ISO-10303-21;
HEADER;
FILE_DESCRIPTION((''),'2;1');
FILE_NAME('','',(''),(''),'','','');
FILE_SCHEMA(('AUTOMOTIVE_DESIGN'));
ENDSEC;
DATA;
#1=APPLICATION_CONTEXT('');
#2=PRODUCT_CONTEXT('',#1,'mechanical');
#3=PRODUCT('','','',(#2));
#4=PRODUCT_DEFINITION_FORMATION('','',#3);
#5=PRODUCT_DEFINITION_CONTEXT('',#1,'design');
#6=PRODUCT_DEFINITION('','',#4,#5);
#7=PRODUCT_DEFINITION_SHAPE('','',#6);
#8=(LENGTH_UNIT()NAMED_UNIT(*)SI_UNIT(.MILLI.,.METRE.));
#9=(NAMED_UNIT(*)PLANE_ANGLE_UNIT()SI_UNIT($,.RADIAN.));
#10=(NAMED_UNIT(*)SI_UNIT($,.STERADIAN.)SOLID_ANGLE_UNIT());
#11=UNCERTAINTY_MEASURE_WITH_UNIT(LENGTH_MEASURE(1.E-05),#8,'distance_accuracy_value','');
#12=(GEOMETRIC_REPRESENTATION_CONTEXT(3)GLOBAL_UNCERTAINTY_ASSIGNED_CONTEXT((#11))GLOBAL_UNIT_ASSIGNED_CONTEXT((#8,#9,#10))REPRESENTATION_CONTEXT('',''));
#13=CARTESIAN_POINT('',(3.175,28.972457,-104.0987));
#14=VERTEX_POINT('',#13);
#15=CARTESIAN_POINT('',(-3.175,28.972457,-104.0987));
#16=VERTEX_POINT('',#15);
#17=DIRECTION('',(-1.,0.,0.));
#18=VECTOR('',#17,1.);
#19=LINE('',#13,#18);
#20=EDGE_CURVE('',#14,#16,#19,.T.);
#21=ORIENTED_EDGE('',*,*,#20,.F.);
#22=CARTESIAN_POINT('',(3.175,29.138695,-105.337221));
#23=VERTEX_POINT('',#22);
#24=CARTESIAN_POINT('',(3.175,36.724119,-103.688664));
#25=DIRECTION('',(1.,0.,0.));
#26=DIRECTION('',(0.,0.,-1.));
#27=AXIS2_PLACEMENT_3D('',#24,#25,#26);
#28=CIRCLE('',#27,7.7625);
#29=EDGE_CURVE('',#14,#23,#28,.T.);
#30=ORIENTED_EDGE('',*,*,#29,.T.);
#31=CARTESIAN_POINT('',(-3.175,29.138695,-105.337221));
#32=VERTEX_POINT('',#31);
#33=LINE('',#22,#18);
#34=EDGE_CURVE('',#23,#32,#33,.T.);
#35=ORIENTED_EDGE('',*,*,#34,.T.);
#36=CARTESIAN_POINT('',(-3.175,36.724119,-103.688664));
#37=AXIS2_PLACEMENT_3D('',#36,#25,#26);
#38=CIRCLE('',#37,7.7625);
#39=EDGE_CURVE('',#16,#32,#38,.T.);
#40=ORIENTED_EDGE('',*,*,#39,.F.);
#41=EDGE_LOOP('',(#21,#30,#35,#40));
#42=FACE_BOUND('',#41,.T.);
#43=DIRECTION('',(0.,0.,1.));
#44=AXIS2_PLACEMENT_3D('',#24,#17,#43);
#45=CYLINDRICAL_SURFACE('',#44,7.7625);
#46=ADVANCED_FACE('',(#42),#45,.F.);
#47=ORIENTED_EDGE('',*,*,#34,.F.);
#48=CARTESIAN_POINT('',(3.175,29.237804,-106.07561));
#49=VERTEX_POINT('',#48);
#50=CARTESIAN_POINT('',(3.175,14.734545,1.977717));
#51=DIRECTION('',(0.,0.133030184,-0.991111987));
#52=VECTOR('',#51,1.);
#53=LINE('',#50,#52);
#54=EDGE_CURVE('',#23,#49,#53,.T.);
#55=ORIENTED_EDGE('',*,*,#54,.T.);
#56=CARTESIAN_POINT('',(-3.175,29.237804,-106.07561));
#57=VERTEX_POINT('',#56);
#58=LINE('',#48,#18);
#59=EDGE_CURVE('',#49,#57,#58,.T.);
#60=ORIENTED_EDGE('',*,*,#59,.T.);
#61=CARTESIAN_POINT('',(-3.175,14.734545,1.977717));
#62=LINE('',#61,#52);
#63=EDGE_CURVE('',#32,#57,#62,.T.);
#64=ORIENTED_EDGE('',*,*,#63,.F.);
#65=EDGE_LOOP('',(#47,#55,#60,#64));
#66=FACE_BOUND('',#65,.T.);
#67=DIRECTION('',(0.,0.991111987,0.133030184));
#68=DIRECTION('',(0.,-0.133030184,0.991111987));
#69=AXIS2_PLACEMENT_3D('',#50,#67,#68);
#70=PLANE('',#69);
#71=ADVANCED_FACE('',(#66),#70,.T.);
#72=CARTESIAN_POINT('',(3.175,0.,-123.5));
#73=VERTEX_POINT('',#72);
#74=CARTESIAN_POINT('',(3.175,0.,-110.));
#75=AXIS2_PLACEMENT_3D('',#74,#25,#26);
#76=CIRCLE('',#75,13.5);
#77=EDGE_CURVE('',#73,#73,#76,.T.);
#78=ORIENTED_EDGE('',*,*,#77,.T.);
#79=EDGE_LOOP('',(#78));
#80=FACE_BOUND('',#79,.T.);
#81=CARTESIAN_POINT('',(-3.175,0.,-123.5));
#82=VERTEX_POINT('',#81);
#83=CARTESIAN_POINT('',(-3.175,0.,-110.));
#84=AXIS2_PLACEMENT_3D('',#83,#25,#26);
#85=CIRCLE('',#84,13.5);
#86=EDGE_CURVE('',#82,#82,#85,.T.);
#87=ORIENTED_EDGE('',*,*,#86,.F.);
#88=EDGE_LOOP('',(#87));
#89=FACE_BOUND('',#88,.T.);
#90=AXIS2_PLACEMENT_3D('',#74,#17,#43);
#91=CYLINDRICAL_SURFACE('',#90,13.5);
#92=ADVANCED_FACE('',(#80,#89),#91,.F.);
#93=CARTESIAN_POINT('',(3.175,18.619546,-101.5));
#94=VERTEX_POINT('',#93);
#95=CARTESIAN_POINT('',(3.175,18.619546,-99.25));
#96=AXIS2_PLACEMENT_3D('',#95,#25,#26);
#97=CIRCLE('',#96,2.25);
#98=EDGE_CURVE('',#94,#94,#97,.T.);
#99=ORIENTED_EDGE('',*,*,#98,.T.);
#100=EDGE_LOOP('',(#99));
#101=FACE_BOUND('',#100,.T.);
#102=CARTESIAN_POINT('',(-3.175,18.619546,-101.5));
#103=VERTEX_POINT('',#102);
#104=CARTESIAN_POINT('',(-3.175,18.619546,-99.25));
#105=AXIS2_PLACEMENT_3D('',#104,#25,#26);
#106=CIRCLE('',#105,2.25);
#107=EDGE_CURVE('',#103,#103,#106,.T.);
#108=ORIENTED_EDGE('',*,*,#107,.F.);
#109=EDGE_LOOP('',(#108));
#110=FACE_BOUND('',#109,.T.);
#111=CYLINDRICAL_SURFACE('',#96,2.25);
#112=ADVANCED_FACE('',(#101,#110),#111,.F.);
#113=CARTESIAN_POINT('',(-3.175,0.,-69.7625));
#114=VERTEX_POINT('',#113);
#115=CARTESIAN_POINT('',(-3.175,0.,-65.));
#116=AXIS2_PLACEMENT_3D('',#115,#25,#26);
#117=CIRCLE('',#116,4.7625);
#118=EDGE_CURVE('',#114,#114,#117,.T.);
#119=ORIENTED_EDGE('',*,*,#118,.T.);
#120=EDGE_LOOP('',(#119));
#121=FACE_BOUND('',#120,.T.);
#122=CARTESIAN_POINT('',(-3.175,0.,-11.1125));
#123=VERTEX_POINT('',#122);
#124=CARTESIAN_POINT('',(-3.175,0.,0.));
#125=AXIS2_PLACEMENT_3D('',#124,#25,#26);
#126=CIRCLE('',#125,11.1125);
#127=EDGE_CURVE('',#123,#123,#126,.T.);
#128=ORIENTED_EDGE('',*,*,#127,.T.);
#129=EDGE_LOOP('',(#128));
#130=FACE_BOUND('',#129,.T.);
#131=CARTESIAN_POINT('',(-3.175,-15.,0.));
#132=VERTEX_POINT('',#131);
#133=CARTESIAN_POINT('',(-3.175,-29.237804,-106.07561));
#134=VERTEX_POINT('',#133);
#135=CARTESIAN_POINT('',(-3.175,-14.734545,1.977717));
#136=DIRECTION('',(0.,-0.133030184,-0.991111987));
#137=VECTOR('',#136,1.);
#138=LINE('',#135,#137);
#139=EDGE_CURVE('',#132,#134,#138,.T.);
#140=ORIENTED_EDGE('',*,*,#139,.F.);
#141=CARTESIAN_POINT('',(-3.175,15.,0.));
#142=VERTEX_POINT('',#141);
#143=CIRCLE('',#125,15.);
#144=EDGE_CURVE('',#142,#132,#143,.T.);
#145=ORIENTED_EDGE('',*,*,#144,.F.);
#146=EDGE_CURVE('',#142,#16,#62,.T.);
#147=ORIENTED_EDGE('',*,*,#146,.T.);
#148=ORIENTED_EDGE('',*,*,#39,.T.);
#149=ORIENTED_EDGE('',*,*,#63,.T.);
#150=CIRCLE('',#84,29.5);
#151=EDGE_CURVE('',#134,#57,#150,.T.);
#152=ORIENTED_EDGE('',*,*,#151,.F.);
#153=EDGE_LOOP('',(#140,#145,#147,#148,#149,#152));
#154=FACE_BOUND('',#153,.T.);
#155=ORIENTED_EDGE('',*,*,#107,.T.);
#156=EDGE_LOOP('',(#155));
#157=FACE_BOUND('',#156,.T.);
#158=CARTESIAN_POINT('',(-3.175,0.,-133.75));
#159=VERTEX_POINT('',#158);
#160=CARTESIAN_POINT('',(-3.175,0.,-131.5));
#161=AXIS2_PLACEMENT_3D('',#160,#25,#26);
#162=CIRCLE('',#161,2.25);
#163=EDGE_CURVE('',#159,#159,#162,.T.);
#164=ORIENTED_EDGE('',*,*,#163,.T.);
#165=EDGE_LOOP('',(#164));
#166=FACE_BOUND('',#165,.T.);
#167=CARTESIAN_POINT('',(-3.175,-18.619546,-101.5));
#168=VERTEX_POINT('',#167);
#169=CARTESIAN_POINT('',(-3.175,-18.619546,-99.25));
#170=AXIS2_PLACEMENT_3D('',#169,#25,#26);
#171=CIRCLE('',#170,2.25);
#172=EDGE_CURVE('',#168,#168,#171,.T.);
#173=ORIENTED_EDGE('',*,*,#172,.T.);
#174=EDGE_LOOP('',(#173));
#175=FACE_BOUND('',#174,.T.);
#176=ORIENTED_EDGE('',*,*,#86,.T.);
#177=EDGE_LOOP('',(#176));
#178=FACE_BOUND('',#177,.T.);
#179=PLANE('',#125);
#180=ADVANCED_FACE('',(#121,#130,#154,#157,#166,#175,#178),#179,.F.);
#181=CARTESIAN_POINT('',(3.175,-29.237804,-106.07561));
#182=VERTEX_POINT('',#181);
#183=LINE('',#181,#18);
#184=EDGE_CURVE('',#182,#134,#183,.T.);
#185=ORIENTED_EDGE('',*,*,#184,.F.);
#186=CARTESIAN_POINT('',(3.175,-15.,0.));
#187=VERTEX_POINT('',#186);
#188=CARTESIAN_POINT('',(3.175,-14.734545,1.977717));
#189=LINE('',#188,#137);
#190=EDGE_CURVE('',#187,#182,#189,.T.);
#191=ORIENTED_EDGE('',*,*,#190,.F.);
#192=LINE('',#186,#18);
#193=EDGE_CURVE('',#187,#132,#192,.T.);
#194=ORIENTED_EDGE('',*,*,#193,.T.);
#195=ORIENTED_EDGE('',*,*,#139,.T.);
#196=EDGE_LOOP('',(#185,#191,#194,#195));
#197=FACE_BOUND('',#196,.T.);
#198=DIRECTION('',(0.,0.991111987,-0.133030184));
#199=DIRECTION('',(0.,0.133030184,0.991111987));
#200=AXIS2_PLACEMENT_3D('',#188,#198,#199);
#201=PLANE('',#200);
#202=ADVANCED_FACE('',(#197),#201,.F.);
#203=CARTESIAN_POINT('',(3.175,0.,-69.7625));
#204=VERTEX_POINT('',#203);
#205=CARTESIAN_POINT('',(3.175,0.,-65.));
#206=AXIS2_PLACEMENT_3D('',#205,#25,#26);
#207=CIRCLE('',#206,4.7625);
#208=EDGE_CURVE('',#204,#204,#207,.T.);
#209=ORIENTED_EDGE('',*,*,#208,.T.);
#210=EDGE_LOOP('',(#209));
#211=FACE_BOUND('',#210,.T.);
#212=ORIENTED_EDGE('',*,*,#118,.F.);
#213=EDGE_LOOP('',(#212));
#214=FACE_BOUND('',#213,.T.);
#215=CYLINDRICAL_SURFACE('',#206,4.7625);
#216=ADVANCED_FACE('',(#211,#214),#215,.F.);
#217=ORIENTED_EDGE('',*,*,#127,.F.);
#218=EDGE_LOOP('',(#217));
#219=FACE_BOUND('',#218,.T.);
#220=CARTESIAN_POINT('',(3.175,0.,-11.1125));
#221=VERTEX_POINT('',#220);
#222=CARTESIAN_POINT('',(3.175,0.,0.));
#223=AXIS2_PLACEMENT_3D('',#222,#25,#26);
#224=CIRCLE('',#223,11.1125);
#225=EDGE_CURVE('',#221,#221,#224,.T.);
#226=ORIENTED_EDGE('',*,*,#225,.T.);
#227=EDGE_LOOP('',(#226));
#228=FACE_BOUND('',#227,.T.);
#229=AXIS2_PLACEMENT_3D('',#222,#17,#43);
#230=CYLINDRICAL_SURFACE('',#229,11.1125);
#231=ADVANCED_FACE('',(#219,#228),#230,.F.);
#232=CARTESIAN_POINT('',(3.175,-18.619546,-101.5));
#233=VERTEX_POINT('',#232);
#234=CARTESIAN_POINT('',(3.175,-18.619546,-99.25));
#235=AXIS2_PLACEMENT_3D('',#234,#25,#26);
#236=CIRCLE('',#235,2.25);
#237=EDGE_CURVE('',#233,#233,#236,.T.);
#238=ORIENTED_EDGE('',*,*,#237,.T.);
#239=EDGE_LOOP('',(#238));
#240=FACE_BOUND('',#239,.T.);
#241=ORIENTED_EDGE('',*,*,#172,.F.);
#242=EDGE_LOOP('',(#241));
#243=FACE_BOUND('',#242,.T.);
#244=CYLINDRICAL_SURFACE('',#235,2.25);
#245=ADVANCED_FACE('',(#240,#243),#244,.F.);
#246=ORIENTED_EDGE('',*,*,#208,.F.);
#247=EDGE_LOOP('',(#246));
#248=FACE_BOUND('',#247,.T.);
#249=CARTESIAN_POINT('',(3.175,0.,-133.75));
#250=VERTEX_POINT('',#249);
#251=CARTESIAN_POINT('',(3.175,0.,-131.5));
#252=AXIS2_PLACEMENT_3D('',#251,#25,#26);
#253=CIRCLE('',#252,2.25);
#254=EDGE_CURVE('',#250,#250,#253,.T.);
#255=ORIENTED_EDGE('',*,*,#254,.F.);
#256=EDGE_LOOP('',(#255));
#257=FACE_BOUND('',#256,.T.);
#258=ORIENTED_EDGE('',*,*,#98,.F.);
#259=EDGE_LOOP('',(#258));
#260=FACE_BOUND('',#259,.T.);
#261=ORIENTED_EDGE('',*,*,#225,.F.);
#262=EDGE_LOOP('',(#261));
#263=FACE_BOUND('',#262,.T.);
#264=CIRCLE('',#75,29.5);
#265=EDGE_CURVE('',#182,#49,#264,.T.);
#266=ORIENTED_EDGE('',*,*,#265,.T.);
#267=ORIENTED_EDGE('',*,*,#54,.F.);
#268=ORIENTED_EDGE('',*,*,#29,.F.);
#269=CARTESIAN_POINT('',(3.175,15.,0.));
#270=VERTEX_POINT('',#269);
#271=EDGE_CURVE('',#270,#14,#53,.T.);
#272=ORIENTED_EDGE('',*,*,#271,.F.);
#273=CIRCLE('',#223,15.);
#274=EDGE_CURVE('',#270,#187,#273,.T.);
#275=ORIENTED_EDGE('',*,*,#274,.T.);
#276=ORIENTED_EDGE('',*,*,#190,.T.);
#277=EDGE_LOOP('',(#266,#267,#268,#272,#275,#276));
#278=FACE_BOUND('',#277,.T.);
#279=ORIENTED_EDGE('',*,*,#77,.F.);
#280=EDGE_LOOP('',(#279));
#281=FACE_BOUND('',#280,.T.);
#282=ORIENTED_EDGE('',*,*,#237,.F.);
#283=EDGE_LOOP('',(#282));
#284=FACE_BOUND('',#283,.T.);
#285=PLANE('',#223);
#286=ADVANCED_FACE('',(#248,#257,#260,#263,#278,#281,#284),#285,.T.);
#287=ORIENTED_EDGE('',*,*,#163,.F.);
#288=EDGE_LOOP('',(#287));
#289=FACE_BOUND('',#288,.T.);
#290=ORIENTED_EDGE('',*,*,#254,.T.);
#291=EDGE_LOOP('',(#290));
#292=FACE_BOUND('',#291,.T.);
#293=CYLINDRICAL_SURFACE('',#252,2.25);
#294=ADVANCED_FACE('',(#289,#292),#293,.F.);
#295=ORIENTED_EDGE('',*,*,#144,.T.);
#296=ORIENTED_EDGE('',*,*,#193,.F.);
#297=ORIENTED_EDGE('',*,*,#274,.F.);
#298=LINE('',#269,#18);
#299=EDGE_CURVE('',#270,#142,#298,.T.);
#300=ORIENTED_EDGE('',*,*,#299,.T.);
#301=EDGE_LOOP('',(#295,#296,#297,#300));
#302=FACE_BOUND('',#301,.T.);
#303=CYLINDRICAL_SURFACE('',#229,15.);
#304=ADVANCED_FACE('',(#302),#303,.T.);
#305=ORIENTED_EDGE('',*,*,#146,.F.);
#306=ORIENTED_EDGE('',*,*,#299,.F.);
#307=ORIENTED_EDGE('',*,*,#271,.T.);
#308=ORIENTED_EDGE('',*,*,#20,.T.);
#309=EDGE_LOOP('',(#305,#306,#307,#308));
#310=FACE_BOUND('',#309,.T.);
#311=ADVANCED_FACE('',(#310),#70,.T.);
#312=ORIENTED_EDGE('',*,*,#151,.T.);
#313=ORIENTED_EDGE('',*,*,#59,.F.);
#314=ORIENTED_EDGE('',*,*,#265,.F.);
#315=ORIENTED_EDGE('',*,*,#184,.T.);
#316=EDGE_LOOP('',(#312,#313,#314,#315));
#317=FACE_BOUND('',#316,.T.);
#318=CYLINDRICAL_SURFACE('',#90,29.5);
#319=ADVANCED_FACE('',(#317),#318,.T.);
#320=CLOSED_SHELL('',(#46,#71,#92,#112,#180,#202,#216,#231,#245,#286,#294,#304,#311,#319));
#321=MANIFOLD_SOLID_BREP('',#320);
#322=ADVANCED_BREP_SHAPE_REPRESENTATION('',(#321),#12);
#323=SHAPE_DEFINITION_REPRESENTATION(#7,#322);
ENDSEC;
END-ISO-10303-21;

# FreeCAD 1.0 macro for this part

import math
import FreeCAD as App
import Part
import Sketcher

V = App.Vector
Q = App.Units.Quantity

doc = App.newDocument("Part")
body = doc.addObject("PartDesign::Body", "Body")

# Sketch on YZ plane
sketch1 = body.newObject("Sketcher::SketchObject", "Sketch")
sketch1.AttachmentSupport = (doc.getObject("YZ_Plane"), [""])
sketch1.MapMode = "FlatFace"
sketch1.addGeometry([
    Part.LineSegment(V(29, -104.1, 0), V(15, 0, 0)),  # 0
    Part.ArcOfCircle(Part.Circle(V(0, 0, 0), V(0, 0, 1), 15), math.radians(0), math.radians(15.73)),  # 1
    Part.ArcOfCircle(Part.Circle(V(0, 0, 0), V(0, 0, 1), 15), math.radians(16), math.radians(180)),  # 2
    Part.LineSegment(V(-15, 0, 0), V(-29.2, -106.1, 0)),  # 3
    Part.ArcOfCircle(Part.Circle(V(0, -110, 0), V(0, 0, 1), 29.5), math.radians(172), math.radians(315)),  # 4
    Part.ArcOfCircle(Part.Circle(V(0, -110, 0), V(0, 0, 1), 29.5), math.radians(-45), math.radians(8)),  # 5
    Part.LineSegment(V(29.2, -106.1, 0), V(29.1, -105.3, 0)),  # 6
    Part.ArcOfCircle(Part.Circle(V(36.7, -103.7, 0), V(0, 0, 1), 7.8), math.radians(-176.97), math.radians(-167.74)),  # 7
    Part.Circle(V(0, 0, 0), V(0, 0, 1), 11.1),  # 8
    Part.Circle(V(0, -110, 0), V(0, 0, 1), 13.5),  # 9
], False)
sketch1.addConstraint([
    Sketcher.Constraint("Coincident", 0, 2, 1, 1),
    Sketcher.Constraint("Tangent", 1, 2, 2, 1),
    Sketcher.Constraint("Coincident", 2, 2, 3, 1),
    Sketcher.Constraint("Tangent", 3, 2, 4, 1),
    Sketcher.Constraint("Tangent", 4, 2, 5, 1),
    Sketcher.Constraint("Tangent", 5, 2, 6, 1),
    Sketcher.Constraint("Coincident", 6, 2, 7, 2),
    Sketcher.Constraint("Coincident", 7, 1, 0, 1),
    Sketcher.Constraint("Coincident", 1, 3, -1, 1),
    Sketcher.Constraint("Coincident", 8, 3, -1, 1),
    Sketcher.Constraint("Coincident", 9, 3, 4, 3),
    Sketcher.Constraint("Equal", 1, 2),
    Sketcher.Constraint("Equal", 4, 5),
    Sketcher.Constraint("Symmetric", 3, 2, 5, 2, -2),
    Sketcher.Constraint("PointOnObject", 0, 2, -1),
    Sketcher.Constraint("PointOnObject", 2, 2, -1),
    Sketcher.Constraint("Diameter", 9, Q("27 mm")),
    Sketcher.Constraint("Radius", 1, Q("15 mm")),
    Sketcher.Constraint("Radius", 4, Q("29.5 mm")),
    Sketcher.Constraint("Diameter", 8, Q("22.225 mm")),
    Sketcher.Constraint("DistanceY", 4, 3, -1, 1, Q("110 mm")),
    Sketcher.Constraint("Radius", 7, Q("7.7625 mm")),
    Sketcher.Constraint("DistanceY", 7, 1, -1, 1, Q("104.0987 mm")),
    Sketcher.Constraint("DistanceX", 1, 2, 7, 3, Q("22.285901 mm")),
    Sketcher.Constraint("Distance", 6, Q("0.745011 mm")),
    Sketcher.Constraint("DistanceX", -1, 1, 7, 3, Q("36.724119 mm")),
    Sketcher.Constraint("DistanceY", 4, 2, -1, 1, Q("130.69929 mm")),
])
pad1 = body.newObject("PartDesign::Pad", "Pad")
pad1.Profile = sketch1
pad1.Length = 6.35
pad1.Midplane = True

# Sketch on YZ plane
sketch2 = body.newObject("Sketcher::SketchObject", "Sketch001")
sketch2.AttachmentSupport = (doc.getObject("YZ_Plane"), [""])
sketch2.MapMode = "FlatFace"
sketch2.AttachmentOffset = App.Placement(V(0, 0, 3.175), App.Rotation())
sketch2.addGeometry([
    Part.Circle(V(18.6, -99.2, 0), V(0, 0, 1), 2.2),
    Part.Circle(V(0, -131.5, 0), V(0, 0, 1), 2.2),
    Part.Circle(V(-18.6, -99.2, 0), V(0, 0, 1), 2.2),
], False)
sketch2.addConstraint([
    Sketcher.Constraint("Equal", 0, 1),
    Sketcher.Constraint("Equal", 1, 2),
    Sketcher.Constraint("Symmetric", 0, 3, 2, 3, -2),
    Sketcher.Constraint("PointOnObject", 1, 3, -2),
    Sketcher.Constraint("Diameter", 0, Q("4.5 mm")),
    Sketcher.Constraint("DistanceY", 1, 3, -1, 1, Q("131.5 mm")),
    Sketcher.Constraint("DistanceY", 0, 3, -1, 1, Q("99.25 mm")),
    Sketcher.Constraint("DistanceX", -1, 1, 0, 3, Q("18.619546 mm")),
])
doc.recompute()
hole = body.newObject("PartDesign::Hole", "Hole")
hole.Profile = sketch2
hole.ThreadType = "None"
hole.Diameter = 4.5
hole.DepthType = "ThroughAll"

# Sketch on YZ plane
sketch3 = body.newObject("Sketcher::SketchObject", "Sketch002")
sketch3.AttachmentSupport = (doc.getObject("YZ_Plane"), [""])
sketch3.MapMode = "FlatFace"
sketch3.AttachmentOffset = App.Placement(V(0, 0, 3.175), App.Rotation())
sketch3.addGeometry(Part.Circle(V(0, -65, 0), V(0, 0, 1), 4.8), False)
sketch3.addConstraint([
    Sketcher.Constraint("PointOnObject", 0, 3, -2),
    Sketcher.Constraint("Diameter", 0, Q("9.525 mm")),
    Sketcher.Constraint("DistanceY", 0, 3, -1, 1, Q("65 mm")),
])
doc.recompute()
hole2 = body.newObject("PartDesign::Hole", "Hole001")
hole2.Profile = sketch3
hole2.ThreadType = "None"
hole2.Diameter = 9.525
hole2.DepthType = "ThroughAll"

doc.recompute()
